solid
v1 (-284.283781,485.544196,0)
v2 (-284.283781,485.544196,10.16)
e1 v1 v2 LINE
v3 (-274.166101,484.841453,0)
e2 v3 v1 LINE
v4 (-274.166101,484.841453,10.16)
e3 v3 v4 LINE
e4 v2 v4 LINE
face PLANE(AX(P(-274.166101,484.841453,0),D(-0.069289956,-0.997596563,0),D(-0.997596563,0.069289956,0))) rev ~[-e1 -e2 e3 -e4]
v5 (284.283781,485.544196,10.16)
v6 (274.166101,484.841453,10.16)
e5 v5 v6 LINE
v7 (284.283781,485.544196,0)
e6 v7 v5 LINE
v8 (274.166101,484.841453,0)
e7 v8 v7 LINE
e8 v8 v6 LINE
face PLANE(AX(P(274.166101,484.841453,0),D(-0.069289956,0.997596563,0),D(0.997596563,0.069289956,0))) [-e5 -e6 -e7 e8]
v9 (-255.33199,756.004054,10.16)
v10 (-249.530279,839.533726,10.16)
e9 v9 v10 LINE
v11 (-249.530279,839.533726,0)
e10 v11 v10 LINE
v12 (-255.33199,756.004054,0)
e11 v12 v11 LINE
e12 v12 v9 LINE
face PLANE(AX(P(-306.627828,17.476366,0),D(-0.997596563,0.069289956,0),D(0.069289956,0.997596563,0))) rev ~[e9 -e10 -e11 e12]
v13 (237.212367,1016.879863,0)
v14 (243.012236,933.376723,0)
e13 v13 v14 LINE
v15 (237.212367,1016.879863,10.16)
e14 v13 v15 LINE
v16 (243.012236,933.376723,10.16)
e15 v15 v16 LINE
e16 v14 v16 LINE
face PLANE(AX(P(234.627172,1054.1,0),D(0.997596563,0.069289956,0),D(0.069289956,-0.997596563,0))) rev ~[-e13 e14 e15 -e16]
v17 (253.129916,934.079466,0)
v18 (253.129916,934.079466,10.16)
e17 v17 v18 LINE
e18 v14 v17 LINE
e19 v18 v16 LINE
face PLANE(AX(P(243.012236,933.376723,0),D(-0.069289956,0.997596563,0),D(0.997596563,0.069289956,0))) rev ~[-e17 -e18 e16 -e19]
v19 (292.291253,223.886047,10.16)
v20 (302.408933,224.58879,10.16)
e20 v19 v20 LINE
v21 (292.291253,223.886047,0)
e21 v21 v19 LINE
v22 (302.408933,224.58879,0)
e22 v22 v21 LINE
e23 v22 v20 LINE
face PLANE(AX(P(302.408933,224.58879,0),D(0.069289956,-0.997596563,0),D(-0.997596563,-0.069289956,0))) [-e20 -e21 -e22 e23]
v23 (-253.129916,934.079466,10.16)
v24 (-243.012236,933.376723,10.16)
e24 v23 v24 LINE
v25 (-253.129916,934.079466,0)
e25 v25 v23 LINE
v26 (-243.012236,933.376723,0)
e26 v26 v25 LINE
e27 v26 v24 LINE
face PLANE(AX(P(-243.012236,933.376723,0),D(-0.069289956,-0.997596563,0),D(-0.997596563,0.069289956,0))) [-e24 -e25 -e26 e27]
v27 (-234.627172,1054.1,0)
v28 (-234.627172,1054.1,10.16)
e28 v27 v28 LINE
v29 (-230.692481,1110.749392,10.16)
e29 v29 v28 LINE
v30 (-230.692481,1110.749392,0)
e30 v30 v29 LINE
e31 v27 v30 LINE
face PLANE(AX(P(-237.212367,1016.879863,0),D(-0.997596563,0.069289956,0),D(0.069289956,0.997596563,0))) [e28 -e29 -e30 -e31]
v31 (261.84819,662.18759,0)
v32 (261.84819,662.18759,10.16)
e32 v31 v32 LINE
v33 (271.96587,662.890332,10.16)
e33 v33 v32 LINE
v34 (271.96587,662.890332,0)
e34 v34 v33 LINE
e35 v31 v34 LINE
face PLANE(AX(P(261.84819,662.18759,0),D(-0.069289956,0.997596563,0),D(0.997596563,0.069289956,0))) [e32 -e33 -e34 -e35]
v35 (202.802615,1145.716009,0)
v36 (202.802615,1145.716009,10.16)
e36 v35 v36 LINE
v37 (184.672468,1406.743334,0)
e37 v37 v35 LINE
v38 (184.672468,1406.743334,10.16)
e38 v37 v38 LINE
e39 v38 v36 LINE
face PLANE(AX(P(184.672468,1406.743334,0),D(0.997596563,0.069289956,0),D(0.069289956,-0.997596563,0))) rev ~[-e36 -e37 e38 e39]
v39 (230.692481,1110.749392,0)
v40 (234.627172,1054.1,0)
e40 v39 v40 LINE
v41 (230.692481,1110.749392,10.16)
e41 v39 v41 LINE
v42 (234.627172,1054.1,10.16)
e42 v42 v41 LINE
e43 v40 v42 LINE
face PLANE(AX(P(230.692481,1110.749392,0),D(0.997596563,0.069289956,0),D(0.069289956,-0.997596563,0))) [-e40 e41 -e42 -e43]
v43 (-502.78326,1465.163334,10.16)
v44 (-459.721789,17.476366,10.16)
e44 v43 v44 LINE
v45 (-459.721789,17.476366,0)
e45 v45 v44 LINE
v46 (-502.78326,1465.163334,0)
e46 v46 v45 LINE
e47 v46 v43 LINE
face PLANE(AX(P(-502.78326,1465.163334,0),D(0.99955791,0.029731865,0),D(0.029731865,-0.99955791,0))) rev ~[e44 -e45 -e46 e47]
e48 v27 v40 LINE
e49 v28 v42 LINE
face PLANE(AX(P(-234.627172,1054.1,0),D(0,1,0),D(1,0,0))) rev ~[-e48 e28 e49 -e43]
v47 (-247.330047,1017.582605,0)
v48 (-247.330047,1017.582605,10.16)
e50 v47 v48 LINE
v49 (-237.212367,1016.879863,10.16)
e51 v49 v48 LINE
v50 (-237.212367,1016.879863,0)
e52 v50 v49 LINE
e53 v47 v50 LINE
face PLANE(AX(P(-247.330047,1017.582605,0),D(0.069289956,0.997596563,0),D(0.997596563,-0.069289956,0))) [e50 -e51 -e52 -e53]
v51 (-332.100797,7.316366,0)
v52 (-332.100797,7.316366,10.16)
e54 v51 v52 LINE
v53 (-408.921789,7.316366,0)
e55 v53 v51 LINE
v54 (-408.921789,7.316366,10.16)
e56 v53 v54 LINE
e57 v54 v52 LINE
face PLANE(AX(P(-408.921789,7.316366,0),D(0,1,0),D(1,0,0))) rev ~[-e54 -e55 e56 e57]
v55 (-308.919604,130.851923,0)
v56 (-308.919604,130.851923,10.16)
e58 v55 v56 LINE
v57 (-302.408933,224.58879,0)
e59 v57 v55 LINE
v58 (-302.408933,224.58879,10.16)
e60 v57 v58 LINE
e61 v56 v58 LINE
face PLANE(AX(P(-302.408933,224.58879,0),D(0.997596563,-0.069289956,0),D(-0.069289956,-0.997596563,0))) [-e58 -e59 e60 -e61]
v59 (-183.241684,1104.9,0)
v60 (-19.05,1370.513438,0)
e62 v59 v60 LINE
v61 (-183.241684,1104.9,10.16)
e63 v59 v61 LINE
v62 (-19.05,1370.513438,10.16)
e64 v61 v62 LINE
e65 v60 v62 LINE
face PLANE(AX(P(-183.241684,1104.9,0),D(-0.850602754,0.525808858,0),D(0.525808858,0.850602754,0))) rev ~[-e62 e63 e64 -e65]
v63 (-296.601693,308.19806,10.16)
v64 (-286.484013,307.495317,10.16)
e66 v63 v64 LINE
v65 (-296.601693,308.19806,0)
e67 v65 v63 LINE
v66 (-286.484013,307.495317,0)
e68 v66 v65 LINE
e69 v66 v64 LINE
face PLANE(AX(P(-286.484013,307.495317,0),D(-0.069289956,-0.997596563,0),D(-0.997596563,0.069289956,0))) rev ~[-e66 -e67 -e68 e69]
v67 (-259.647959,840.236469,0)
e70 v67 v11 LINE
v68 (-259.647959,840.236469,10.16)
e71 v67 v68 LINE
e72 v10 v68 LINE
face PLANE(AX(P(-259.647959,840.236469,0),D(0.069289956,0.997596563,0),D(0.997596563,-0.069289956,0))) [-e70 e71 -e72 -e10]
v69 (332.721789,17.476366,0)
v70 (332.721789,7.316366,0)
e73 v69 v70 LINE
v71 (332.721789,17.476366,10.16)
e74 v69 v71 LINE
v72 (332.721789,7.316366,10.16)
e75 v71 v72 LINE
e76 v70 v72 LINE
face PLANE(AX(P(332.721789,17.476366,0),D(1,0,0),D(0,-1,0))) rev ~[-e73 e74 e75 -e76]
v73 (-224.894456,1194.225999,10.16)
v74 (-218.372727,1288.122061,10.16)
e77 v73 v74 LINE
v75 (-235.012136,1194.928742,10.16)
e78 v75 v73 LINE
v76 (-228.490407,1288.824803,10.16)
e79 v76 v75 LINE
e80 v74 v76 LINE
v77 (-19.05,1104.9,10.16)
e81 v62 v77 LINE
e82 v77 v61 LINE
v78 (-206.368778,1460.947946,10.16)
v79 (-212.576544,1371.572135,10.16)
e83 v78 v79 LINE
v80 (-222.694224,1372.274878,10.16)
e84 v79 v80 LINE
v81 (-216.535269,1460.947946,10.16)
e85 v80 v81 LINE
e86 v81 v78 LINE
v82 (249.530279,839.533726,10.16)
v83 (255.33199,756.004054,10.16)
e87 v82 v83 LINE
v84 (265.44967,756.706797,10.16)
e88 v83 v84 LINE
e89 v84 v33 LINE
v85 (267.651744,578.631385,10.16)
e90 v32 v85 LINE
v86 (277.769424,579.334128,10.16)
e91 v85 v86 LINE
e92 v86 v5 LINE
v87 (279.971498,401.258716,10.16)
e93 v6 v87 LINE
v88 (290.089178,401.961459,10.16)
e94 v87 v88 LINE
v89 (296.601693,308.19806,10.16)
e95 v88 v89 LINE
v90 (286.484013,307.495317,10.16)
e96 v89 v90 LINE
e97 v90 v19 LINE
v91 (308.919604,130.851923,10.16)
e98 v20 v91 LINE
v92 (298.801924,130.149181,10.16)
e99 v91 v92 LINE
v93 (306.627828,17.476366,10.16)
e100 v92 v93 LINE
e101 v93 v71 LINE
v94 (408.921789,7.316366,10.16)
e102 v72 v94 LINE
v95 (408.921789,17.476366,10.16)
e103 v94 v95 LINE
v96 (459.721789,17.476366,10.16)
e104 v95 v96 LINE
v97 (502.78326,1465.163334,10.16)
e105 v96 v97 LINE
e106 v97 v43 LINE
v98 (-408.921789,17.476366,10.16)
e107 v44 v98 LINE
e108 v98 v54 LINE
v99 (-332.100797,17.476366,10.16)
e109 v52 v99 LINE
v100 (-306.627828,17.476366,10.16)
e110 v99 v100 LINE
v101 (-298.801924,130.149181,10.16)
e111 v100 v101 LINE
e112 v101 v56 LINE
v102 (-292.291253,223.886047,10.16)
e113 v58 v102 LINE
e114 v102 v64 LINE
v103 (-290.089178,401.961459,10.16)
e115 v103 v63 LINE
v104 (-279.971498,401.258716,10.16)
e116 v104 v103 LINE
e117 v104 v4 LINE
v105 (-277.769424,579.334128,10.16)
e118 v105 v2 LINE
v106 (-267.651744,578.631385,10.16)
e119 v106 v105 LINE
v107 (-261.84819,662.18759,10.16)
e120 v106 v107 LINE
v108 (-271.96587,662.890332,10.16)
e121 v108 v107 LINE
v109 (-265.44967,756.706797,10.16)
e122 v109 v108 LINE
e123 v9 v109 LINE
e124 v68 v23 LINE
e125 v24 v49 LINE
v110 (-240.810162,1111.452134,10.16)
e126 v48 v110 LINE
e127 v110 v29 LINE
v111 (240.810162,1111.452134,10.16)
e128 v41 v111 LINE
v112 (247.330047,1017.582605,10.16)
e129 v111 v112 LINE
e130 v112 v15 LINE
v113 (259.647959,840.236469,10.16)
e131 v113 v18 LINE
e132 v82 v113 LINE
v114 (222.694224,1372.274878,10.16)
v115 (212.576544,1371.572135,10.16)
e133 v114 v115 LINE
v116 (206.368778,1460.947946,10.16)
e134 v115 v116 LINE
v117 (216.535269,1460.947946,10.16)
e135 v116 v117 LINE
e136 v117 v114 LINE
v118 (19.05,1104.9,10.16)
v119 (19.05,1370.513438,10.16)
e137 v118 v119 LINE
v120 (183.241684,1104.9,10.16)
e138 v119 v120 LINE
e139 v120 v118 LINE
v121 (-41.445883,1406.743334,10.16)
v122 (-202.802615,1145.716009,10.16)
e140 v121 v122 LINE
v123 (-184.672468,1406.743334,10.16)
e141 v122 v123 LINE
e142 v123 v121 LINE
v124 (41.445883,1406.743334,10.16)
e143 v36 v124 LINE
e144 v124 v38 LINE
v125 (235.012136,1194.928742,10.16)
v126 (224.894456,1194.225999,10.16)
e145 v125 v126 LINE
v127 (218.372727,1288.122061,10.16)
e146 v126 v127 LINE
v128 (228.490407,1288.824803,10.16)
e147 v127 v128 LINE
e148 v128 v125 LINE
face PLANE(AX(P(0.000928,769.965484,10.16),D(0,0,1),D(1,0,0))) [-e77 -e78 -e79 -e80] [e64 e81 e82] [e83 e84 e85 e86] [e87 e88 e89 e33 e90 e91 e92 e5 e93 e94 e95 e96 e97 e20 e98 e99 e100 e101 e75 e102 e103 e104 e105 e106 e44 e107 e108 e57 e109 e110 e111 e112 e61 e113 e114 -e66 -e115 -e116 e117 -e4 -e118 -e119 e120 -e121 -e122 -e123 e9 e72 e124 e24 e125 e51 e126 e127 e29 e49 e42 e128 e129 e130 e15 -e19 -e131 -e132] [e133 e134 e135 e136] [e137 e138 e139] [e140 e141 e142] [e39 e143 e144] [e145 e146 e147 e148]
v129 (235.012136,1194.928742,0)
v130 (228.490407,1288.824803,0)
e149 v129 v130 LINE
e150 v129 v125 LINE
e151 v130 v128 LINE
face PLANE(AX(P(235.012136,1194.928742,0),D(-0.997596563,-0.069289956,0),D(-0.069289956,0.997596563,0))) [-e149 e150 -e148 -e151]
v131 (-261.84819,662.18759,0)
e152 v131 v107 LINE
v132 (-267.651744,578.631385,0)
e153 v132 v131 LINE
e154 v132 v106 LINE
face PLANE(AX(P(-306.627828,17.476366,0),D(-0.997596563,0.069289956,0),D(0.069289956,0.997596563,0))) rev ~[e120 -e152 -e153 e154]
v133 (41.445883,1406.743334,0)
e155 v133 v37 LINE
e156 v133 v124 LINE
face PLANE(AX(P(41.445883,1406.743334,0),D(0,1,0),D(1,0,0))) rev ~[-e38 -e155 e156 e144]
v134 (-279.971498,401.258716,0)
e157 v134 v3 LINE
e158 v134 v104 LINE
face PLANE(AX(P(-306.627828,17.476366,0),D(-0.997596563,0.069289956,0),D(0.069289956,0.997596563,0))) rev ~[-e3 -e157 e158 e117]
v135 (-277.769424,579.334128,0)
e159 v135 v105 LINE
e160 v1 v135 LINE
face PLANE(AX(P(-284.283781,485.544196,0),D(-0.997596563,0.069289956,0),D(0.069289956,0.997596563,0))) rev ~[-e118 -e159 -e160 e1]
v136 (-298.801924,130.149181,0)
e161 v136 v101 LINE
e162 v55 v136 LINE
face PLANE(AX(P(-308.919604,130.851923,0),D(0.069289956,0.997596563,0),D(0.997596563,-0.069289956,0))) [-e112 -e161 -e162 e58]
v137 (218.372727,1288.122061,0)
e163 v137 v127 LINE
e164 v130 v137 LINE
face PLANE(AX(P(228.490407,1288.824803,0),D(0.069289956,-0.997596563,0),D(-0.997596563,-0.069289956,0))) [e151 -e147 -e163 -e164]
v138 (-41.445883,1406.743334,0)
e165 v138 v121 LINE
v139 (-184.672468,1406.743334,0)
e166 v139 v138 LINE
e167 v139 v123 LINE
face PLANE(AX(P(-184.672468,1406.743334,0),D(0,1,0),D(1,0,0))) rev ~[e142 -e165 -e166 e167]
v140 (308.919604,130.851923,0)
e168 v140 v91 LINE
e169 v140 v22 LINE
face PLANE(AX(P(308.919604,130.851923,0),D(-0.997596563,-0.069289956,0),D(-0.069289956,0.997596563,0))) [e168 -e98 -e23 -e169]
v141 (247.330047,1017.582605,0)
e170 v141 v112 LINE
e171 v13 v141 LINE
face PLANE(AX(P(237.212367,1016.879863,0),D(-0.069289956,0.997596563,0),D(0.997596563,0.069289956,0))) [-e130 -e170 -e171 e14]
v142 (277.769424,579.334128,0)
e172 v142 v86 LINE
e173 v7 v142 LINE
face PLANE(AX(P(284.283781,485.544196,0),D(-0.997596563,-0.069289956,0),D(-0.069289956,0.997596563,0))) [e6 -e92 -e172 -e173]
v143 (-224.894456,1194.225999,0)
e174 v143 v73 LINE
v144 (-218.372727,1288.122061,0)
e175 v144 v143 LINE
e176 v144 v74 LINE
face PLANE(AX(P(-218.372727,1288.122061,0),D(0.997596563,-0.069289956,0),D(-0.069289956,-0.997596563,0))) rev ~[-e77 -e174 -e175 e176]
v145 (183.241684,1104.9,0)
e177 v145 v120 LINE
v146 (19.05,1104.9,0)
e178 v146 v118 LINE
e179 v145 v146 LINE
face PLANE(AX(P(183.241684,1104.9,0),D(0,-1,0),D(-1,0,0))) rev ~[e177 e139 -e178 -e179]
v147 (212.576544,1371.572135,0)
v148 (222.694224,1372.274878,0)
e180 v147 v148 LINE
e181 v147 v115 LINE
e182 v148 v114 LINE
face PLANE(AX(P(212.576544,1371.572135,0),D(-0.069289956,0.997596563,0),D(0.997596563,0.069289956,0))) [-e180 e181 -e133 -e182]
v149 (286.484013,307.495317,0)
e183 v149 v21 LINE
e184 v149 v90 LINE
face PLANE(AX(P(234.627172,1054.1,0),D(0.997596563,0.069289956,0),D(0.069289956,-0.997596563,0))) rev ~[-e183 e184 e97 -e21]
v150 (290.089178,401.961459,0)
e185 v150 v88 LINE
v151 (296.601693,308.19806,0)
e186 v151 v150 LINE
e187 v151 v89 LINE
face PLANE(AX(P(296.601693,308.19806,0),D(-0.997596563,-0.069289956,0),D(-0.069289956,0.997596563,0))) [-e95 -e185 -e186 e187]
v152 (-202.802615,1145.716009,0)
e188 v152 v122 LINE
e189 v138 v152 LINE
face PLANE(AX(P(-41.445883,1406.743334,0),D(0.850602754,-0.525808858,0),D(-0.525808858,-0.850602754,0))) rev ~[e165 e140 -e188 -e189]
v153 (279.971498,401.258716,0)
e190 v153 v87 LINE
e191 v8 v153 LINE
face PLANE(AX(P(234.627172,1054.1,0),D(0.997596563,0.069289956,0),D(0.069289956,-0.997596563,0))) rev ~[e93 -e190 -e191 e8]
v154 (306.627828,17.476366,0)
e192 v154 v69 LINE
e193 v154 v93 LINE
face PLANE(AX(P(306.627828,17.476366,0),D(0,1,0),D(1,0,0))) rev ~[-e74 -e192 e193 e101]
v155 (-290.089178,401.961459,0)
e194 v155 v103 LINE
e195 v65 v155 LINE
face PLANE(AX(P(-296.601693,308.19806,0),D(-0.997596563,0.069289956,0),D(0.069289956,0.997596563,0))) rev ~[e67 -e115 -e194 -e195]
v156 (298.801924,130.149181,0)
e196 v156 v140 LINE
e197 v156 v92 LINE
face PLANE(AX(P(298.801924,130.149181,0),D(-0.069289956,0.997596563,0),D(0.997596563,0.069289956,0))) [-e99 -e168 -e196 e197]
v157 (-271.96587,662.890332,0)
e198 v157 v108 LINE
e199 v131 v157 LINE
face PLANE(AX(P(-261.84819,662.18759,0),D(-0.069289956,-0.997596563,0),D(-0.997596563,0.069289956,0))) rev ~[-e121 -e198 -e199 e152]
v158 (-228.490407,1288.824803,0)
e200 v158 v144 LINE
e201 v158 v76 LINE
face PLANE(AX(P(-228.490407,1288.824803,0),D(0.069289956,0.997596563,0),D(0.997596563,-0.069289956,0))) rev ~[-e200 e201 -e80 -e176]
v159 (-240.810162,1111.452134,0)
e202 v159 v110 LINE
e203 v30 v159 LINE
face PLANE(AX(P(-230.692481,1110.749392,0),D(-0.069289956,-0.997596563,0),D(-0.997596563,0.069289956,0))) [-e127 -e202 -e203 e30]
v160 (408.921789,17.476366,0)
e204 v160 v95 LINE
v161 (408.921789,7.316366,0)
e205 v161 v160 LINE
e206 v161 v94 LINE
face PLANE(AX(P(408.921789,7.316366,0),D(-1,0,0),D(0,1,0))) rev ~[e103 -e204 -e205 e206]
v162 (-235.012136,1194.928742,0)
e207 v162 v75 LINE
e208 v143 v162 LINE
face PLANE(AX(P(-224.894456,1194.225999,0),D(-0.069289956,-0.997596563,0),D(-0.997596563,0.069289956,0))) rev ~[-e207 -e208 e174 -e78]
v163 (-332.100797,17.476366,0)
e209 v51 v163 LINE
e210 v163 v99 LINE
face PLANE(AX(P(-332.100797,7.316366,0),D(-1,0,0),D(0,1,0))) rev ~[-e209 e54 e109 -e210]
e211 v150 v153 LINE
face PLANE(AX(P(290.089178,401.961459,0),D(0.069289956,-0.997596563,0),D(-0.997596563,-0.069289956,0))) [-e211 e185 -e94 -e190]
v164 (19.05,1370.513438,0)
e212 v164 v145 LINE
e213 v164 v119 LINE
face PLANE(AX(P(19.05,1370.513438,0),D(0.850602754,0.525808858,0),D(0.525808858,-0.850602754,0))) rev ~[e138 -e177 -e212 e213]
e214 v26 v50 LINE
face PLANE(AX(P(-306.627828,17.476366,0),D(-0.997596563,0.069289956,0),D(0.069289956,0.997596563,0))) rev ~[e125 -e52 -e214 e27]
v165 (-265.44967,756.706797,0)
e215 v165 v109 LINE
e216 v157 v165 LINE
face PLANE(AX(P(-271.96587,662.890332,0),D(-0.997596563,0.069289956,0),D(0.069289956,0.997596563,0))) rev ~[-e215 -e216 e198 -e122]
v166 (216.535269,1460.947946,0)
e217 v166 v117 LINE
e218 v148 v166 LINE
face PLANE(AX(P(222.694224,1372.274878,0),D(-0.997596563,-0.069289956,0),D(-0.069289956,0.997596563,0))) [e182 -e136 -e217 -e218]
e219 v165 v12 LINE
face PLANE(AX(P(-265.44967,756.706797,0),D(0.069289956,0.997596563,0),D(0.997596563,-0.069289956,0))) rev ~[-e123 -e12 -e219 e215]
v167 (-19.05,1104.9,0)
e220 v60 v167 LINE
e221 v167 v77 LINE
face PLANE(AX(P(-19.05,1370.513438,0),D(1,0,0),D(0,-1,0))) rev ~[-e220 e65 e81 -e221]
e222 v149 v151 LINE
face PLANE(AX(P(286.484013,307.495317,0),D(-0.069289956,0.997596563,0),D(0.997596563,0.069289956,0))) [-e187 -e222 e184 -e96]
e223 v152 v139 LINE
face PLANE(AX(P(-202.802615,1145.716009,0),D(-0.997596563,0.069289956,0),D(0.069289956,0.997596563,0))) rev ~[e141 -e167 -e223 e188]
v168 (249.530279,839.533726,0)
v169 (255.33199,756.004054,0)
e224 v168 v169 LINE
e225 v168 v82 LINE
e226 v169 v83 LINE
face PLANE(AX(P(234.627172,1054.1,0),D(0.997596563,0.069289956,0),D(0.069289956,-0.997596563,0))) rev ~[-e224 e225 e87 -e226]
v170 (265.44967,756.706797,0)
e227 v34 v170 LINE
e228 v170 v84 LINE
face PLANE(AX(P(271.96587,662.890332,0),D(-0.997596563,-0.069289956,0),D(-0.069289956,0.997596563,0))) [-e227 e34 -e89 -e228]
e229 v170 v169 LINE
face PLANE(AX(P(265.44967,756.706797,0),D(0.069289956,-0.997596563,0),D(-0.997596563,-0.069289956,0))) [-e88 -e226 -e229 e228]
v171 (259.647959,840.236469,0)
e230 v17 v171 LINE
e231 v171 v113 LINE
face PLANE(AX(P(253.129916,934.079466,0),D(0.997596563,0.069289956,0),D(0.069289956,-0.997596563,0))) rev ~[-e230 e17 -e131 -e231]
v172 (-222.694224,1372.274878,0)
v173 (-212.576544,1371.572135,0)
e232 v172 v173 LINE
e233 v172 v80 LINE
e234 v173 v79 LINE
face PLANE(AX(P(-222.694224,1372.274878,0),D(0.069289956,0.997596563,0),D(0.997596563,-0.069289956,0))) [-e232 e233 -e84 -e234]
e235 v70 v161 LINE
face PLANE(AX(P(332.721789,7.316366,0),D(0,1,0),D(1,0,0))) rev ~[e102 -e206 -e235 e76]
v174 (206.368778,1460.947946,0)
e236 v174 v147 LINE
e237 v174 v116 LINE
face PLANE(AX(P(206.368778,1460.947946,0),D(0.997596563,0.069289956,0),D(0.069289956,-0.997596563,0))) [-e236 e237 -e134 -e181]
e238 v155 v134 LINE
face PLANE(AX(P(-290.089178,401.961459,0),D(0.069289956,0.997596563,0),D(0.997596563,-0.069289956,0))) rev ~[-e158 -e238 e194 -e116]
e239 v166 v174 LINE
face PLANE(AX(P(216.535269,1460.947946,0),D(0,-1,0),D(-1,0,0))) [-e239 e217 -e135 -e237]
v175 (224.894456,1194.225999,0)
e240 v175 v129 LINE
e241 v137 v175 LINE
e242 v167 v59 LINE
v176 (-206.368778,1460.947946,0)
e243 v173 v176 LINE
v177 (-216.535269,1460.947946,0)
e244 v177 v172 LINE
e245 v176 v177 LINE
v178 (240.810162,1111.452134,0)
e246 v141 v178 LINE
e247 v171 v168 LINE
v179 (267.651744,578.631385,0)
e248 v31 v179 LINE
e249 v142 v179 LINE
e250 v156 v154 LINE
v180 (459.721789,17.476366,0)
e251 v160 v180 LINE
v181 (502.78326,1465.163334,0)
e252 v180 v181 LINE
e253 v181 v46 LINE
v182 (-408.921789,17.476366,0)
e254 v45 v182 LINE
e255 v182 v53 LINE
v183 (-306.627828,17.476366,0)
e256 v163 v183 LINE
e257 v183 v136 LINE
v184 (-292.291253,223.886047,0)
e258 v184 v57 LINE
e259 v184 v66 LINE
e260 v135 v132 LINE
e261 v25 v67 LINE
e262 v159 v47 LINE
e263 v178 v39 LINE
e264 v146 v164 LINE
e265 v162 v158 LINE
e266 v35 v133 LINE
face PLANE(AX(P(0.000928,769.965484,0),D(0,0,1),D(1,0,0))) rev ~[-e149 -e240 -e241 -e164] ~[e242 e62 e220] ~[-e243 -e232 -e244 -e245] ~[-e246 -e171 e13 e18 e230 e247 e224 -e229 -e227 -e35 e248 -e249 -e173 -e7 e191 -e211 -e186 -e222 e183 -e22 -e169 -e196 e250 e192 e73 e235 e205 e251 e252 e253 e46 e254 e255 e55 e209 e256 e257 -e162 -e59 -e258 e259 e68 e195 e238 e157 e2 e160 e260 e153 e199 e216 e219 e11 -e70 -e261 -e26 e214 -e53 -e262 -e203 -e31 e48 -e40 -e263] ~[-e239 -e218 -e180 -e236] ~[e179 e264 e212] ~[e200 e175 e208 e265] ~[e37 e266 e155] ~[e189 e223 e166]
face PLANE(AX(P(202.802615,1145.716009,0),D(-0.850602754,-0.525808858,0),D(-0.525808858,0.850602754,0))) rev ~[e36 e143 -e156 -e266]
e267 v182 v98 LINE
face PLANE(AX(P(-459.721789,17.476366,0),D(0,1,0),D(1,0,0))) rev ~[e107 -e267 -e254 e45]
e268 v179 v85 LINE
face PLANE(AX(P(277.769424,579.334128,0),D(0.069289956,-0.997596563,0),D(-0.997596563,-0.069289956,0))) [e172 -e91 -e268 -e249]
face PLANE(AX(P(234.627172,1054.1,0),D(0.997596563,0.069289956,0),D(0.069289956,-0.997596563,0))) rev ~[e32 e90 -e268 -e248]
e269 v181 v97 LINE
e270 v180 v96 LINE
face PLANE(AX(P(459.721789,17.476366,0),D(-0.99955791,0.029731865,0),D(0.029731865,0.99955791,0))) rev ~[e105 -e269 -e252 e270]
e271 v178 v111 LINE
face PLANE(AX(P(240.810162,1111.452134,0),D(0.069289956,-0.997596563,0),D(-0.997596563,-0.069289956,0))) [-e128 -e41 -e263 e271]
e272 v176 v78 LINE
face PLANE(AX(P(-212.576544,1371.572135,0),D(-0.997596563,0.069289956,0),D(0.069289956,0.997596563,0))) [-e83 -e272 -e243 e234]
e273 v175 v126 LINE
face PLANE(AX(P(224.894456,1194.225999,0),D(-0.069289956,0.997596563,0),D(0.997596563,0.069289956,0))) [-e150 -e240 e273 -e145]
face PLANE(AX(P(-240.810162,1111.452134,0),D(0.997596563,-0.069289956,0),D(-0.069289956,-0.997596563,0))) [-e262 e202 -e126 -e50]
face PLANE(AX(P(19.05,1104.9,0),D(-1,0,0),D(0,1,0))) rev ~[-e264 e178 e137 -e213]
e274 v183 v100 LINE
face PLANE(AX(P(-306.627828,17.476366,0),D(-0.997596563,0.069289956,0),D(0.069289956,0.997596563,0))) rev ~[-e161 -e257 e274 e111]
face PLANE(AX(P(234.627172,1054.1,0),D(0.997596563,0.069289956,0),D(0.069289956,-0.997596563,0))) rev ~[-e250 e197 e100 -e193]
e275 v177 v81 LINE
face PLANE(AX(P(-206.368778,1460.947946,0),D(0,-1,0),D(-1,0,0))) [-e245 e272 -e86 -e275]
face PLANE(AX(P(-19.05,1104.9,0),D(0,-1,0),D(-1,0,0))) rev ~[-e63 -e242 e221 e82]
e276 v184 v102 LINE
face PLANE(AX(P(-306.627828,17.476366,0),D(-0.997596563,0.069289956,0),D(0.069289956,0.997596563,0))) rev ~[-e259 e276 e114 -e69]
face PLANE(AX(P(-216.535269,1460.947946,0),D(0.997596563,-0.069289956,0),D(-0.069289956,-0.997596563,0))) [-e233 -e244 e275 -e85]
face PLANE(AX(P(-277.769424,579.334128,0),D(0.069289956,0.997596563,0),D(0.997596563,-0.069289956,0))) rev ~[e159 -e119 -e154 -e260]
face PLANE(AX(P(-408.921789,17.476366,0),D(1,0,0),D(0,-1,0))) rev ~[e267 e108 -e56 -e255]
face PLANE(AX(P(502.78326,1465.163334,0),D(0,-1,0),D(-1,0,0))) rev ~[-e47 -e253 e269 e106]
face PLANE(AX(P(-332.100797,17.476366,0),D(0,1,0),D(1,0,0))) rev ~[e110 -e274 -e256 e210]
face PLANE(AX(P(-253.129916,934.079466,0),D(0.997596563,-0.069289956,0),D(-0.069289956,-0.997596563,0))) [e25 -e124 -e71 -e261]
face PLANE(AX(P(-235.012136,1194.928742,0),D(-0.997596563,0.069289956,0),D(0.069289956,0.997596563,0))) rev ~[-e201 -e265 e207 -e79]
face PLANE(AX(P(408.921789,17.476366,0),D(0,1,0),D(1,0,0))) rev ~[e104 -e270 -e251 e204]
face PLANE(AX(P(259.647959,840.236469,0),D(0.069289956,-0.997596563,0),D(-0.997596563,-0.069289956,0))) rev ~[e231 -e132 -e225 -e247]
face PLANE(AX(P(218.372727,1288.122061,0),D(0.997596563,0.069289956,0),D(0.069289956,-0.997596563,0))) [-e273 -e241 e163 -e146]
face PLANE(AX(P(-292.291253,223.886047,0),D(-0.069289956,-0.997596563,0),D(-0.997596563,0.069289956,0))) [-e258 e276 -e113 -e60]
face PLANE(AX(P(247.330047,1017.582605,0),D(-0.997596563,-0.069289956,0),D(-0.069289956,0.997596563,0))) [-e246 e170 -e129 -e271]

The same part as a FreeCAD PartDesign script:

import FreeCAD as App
import Part
import Sketcher
Q = App.Units.Quantity

doc = App.newDocument("Part")
body = doc.addObject("PartDesign::Body", "Body")

sketch1 = body.newObject("Sketcher::SketchObject", "Sketch")
sketch1.AttachmentSupport = (doc.getObject("XY_Plane"), [""])
sketch1.MapMode = "FlatFace"
sketch1.addGeometry(Part.LineSegment(App.Vector(-503, 1465, 0), App.Vector(-460, 17, 0)), False)
sketch1.addGeometry(Part.LineSegment(App.Vector(-460, 17, 0), App.Vector(-409, 17, 0)), False)
sketch1.addGeometry(Part.LineSegment(App.Vector(-409, 17, 0), App.Vector(-409, 7, 0)), False)
sketch1.addGeometry(Part.LineSegment(App.Vector(-409, 7, 0), App.Vector(-332, 7, 0)), False)
sketch1.addGeometry(Part.LineSegment(App.Vector(-332, 7, 0), App.Vector(-332, 17, 0)), False)
sketch1.addGeometry(Part.LineSegment(App.Vector(-332, 17, 0), App.Vector(-307, 17, 0)), False)
sketch1.addGeometry(Part.LineSegment(App.Vector(-307, 17, 0), App.Vector(-235, 1054, 0)), False)
sketch1.addGeometry(Part.LineSegment(App.Vector(-235, 1054, 0), App.Vector(235, 1054, 0)), False)
sketch1.addGeometry(Part.LineSegment(App.Vector(235, 1054, 0), App.Vector(307, 17, 0)), False)
sketch1.addGeometry(Part.LineSegment(App.Vector(307, 17, 0), App.Vector(333, 17, 0)), False)
sketch1.addGeometry(Part.LineSegment(App.Vector(333, 17, 0), App.Vector(333, 7, 0)), False)
sketch1.addGeometry(Part.LineSegment(App.Vector(333, 7, 0), App.Vector(409, 7, 0)), False)
sketch1.addGeometry(Part.LineSegment(App.Vector(409, 7, 0), App.Vector(409, 17, 0)), False)
sketch1.addGeometry(Part.LineSegment(App.Vector(409, 17, 0), App.Vector(460, 17, 0)), False)
sketch1.addGeometry(Part.LineSegment(App.Vector(460, 17, 0), App.Vector(503, 1465, 0)), False)
sketch1.addGeometry(Part.LineSegment(App.Vector(503, 1465, 0), App.Vector(-503, 1465, 0)), False)
sketch1.addGeometry(Part.LineSegment(App.Vector(-183, 1105, 0), App.Vector(-19, 1371, 0)), False)
sketch1.addGeometry(Part.LineSegment(App.Vector(-19, 1371, 0), App.Vector(-19, 1105, 0)), False)
sketch1.addGeometry(Part.LineSegment(App.Vector(-19, 1105, 0), App.Vector(-183, 1105, 0)), False)
sketch1.addGeometry(Part.LineSegment(App.Vector(19, 1371, 0), App.Vector(183, 1105, 0)), False)
sketch1.addGeometry(Part.LineSegment(App.Vector(183, 1105, 0), App.Vector(19, 1105, 0)), False)
sketch1.addGeometry(Part.LineSegment(App.Vector(19, 1105, 0), App.Vector(19, 1371, 0)), False)
sketch1.addGeometry(Part.LineSegment(App.Vector(-203, 1146, 0), App.Vector(-185, 1407, 0)), False)
sketch1.addGeometry(Part.LineSegment(App.Vector(-185, 1407, 0), App.Vector(-41, 1407, 0)), False)
sketch1.addGeometry(Part.LineSegment(App.Vector(-41, 1407, 0), App.Vector(-203, 1146, 0)), False)
sketch1.addGeometry(Part.LineSegment(App.Vector(41, 1407, 0), App.Vector(185, 1407, 0)), False)
sketch1.addGeometry(Part.LineSegment(App.Vector(185, 1407, 0), App.Vector(203, 1146, 0)), False)
sketch1.addGeometry(Part.LineSegment(App.Vector(203, 1146, 0), App.Vector(41, 1407, 0)), False)
sketch1.addConstraint(Sketcher.Constraint("Coincident", 0, 2, 1, 1))
sketch1.addConstraint(Sketcher.Constraint("Coincident", 1, 2, 2, 1))
sketch1.addConstraint(Sketcher.Constraint("Coincident", 2, 2, 3, 1))
sketch1.addConstraint(Sketcher.Constraint("Coincident", 3, 2, 4, 1))
sketch1.addConstraint(Sketcher.Constraint("Coincident", 4, 2, 5, 1))
sketch1.addConstraint(Sketcher.Constraint("Coincident", 5, 2, 6, 1))
sketch1.addConstraint(Sketcher.Constraint("Coincident", 6, 2, 7, 1))
sketch1.addConstraint(Sketcher.Constraint("Coincident", 7, 2, 8, 1))
sketch1.addConstraint(Sketcher.Constraint("Coincident", 8, 2, 9, 1))
sketch1.addConstraint(Sketcher.Constraint("Coincident", 9, 2, 10, 1))
sketch1.addConstraint(Sketcher.Constraint("Coincident", 10, 2, 11, 1))
sketch1.addConstraint(Sketcher.Constraint("Coincident", 11, 2, 12, 1))
sketch1.addConstraint(Sketcher.Constraint("Coincident", 12, 2, 13, 1))
sketch1.addConstraint(Sketcher.Constraint("Coincident", 13, 2, 14, 1))
sketch1.addConstraint(Sketcher.Constraint("Coincident", 14, 2, 15, 1))
sketch1.addConstraint(Sketcher.Constraint("Coincident", 15, 2, 0, 1))
sketch1.addConstraint(Sketcher.Constraint("Coincident", 16, 2, 17, 1))
sketch1.addConstraint(Sketcher.Constraint("Coincident", 17, 2, 18, 1))
sketch1.addConstraint(Sketcher.Constraint("Coincident", 18, 2, 16, 1))
sketch1.addConstraint(Sketcher.Constraint("Coincident", 19, 2, 20, 1))
sketch1.addConstraint(Sketcher.Constraint("Coincident", 20, 2, 21, 1))
sketch1.addConstraint(Sketcher.Constraint("Coincident", 21, 2, 19, 1))
sketch1.addConstraint(Sketcher.Constraint("Coincident", 22, 2, 23, 1))
sketch1.addConstraint(Sketcher.Constraint("Coincident", 23, 2, 24, 1))
sketch1.addConstraint(Sketcher.Constraint("Coincident", 24, 2, 22, 1))
sketch1.addConstraint(Sketcher.Constraint("Coincident", 25, 2, 26, 1))
sketch1.addConstraint(Sketcher.Constraint("Coincident", 26, 2, 27, 1))
sketch1.addConstraint(Sketcher.Constraint("Coincident", 27, 2, 25, 1))
sketch1.addConstraint(Sketcher.Constraint("Horizontal", 1))
sketch1.addConstraint(Sketcher.Constraint("Vertical", 2))
sketch1.addConstraint(Sketcher.Constraint("Horizontal", 3))
sketch1.addConstraint(Sketcher.Constraint("Vertical", 4))
sketch1.addConstraint(Sketcher.Constraint("Horizontal", 5))
sketch1.addConstraint(Sketcher.Constraint("Horizontal", 7))
sketch1.addConstraint(Sketcher.Constraint("Horizontal", 9))
sketch1.addConstraint(Sketcher.Constraint("Vertical", 10))
sketch1.addConstraint(Sketcher.Constraint("Horizontal", 11))
sketch1.addConstraint(Sketcher.Constraint("Vertical", 12))
sketch1.addConstraint(Sketcher.Constraint("Horizontal", 13))
sketch1.addConstraint(Sketcher.Constraint("Horizontal", 15))
sketch1.addConstraint(Sketcher.Constraint("Vertical", 17))
sketch1.addConstraint(Sketcher.Constraint("Horizontal", 18))
sketch1.addConstraint(Sketcher.Constraint("Horizontal", 20))
sketch1.addConstraint(Sketcher.Constraint("Vertical", 21))
sketch1.addConstraint(Sketcher.Constraint("Horizontal", 23))
sketch1.addConstraint(Sketcher.Constraint("Horizontal", 25))
sketch1.addConstraint(Sketcher.Constraint("Symmetric", 5, 2, 8, 2, -2))
sketch1.addConstraint(Sketcher.Constraint("Symmetric", 2, 2, 11, 2, -2))
sketch1.addConstraint(Sketcher.Constraint("Symmetric", 0, 2, 13, 2, -2))
sketch1.addConstraint(Sketcher.Constraint("Symmetric", 18, 2, 19, 2, -2))
sketch1.addConstraint(Sketcher.Constraint("Symmetric", 16, 2, 21, 2, -2))
sketch1.addConstraint(Sketcher.Constraint("Symmetric", 22, 2, 25, 2, -2))
sketch1.addConstraint(Sketcher.Constraint("Symmetric", 24, 2, 26, 2, -2))
sketch1.addConstraint(Sketcher.Constraint("Parallel", 6, 22))
sketch1.addConstraint(Sketcher.Constraint("Parallel", 16, 24))
sketch1.addConstraint(Sketcher.Constraint("Parallel", 8, 26))
sketch1.addConstraint(Sketcher.Constraint("Parallel", 19, 27))
sketch1.addConstraint(Sketcher.Constraint("Horizontal", 1, 2, 4, 2))
sketch1.addConstraint(Sketcher.Constraint("Equal", 0, 14))
sketch1.addConstraint(Sketcher.Constraint("DistanceX", 1, 1, 1, 2, Q("2 in")))
sketch1.addConstraint(Sketcher.Constraint("DistanceX", 11, 1, 11, 2, Q("3 in")))
sketch1.addConstraint(Sketcher.Constraint("DistanceY", 2, 2, 2, 1, Q("0.4 in")))
sketch1.addConstraint(Sketcher.Constraint("DistanceY", 6, 2, 17, 2, Q("2 in")))
sketch1.addConstraint(Sketcher.Constraint("DistanceY", -1, 1, 6, 2, Q("41.5 in")))
sketch1.addConstraint(Sketcher.Constraint("DistanceX", 17, 2, 20, 2, Q("1.5 in")))
sketch1.addConstraint(Sketcher.Constraint("DistanceY", 22, 2, 15, 2, Q("2.3 in")))
sketch1.addConstraint(Sketcher.Constraint("Distance", 22, 261.6562))
sketch1.addConstraint(Sketcher.Constraint("DistanceX", 5, 1, 5, 2, 25.472969))
sketch1.addConstraint(Sketcher.Constraint("DistanceX", 9, 1, 9, 2, 26.093962))
sketch1.addConstraint(Sketcher.Constraint("DistanceX", 15, 2, 15, 1, 1005.56652))
sketch1.addConstraint(Sketcher.Constraint("DistanceY", 17, 2, 17, 1, 265.613438))
sketch1.addConstraint(Sketcher.Constraint("DistanceX", 5, 2, 7, 2, 541.255))
sketch1.addConstraint(Sketcher.Constraint("Distance", 0, 1448.327259))
sketch1.addConstraint(Sketcher.Constraint("Distance", 24, 306.87336))
sketch1.addConstraint(Sketcher.Constraint("DistanceX", 7, 1, 7, 2, 469.254344))
sketch1.addConstraint(Sketcher.Constraint("DistanceY", -1, 1, 24, 2, 1145.716009))
sketch1.addConstraint(Sketcher.Constraint("DistanceX", 24, 2, 18, 2, 19.56093))
pad1 = body.newObject("PartDesign::Pad", "Pad")
pad1.Profile = sketch1
pad1.Length = Q("0.4 in")

sketch2 = body.newObject("Sketcher::SketchObject", "Sketch001")
sketch2.AttachmentSupport = (doc.getObject("XY_Plane"), [""])
sketch2.MapMode = "FlatFace"
sketch2.addGeometry(Part.LineSegment(App.Vector(-223, 1372, 0), App.Vector(-213, 1372, 0)), False)
sketch2.addGeometry(Part.LineSegment(App.Vector(-213, 1372, 0), App.Vector(-206, 1461, 0)), False)
sketch2.addGeometry(Part.LineSegment(App.Vector(-206, 1461, 0), App.Vector(-217, 1461, 0)), False)
sketch2.addGeometry(Part.LineSegment(App.Vector(-217, 1461, 0), App.Vector(-223, 1372, 0)), False)
sketch2.addGeometry(Part.LineSegment(App.Vector(-235, 1195, 0), App.Vector(-225, 1194, 0)), False)
sketch2.addGeometry(Part.LineSegment(App.Vector(-225, 1194, 0), App.Vector(-218, 1288, 0)), False)
sketch2.addGeometry(Part.LineSegment(App.Vector(-218, 1288, 0), App.Vector(-228, 1289, 0)), False)
sketch2.addGeometry(Part.LineSegment(App.Vector(-228, 1289, 0), App.Vector(-235, 1195, 0)), False)
sketch2.addGeometry(Part.LineSegment(App.Vector(225, 1194, 0), App.Vector(235, 1195, 0)), False)
sketch2.addGeometry(Part.LineSegment(App.Vector(235, 1195, 0), App.Vector(228, 1289, 0)), False)
sketch2.addGeometry(Part.LineSegment(App.Vector(228, 1289, 0), App.Vector(218, 1288, 0)), False)
sketch2.addGeometry(Part.LineSegment(App.Vector(218, 1288, 0), App.Vector(225, 1194, 0)), False)
sketch2.addGeometry(Part.LineSegment(App.Vector(213, 1372, 0), App.Vector(223, 1372, 0)), False)
sketch2.addGeometry(Part.LineSegment(App.Vector(223, 1372, 0), App.Vector(217, 1461, 0)), False)
sketch2.addGeometry(Part.LineSegment(App.Vector(217, 1461, 0), App.Vector(206, 1461, 0)), False)
sketch2.addGeometry(Part.LineSegment(App.Vector(206, 1461, 0), App.Vector(213, 1372, 0)), False)
sketch2.addGeometry(Part.LineSegment(App.Vector(-241, 1111, 0), App.Vector(-247, 1018, 0)), False)
sketch2.addGeometry(Part.LineSegment(App.Vector(-247, 1018, 0), App.Vector(-237, 1017, 0)), False)
sketch2.addGeometry(Part.LineSegment(App.Vector(-237, 1017, 0), App.Vector(-231, 1111, 0)), False)
sketch2.addGeometry(Part.LineSegment(App.Vector(-231, 1111, 0), App.Vector(-241, 1111, 0)), False)
sketch2.addGeometry(Part.LineSegment(App.Vector(237, 1017, 0), App.Vector(247, 1018, 0)), False)
sketch2.addGeometry(Part.LineSegment(App.Vector(247, 1018, 0), App.Vector(241, 1111, 0)), False)
sketch2.addGeometry(Part.LineSegment(App.Vector(241, 1111, 0), App.Vector(231, 1111, 0)), False)
sketch2.addGeometry(Part.LineSegment(App.Vector(231, 1111, 0), App.Vector(237, 1017, 0)), False)
sketch2.addGeometry(Part.LineSegment(App.Vector(-299, 130, 0), App.Vector(-292, 224, 0)), False)
sketch2.addGeometry(Part.LineSegment(App.Vector(-292, 224, 0), App.Vector(-302, 225, 0)), False)
sketch2.addGeometry(Part.LineSegment(App.Vector(-302, 225, 0), App.Vector(-309, 131, 0)), False)
sketch2.addGeometry(Part.LineSegment(App.Vector(-309, 131, 0), App.Vector(-299, 130, 0)), False)
sketch2.addGeometry(Part.LineSegment(App.Vector(-243, 933, 0), App.Vector(-253, 934, 0)), False)
sketch2.addGeometry(Part.LineSegment(App.Vector(-253, 934, 0), App.Vector(-260, 840, 0)), False)
sketch2.addGeometry(Part.LineSegment(App.Vector(-260, 840, 0), App.Vector(-250, 840, 0)), False)
sketch2.addGeometry(Part.LineSegment(App.Vector(-250, 840, 0), App.Vector(-243, 933, 0)), False)
sketch2.addGeometry(Part.LineSegment(App.Vector(253, 934, 0), App.Vector(243, 933, 0)), False)
sketch2.addGeometry(Part.LineSegment(App.Vector(243, 933, 0), App.Vector(250, 840, 0)), False)
sketch2.addGeometry(Part.LineSegment(App.Vector(250, 840, 0), App.Vector(260, 840, 0)), False)
sketch2.addGeometry(Part.LineSegment(App.Vector(260, 840, 0), App.Vector(253, 934, 0)), False)
sketch2.addGeometry(Part.LineSegment(App.Vector(-284, 486, 0), App.Vector(-274, 485, 0)), False)
sketch2.addGeometry(Part.LineSegment(App.Vector(-274, 485, 0), App.Vector(-268, 579, 0)), False)
sketch2.addGeometry(Part.LineSegment(App.Vector(-268, 579, 0), App.Vector(-278, 579, 0)), False)
sketch2.addGeometry(Part.LineSegment(App.Vector(-278, 579, 0), App.Vector(-284, 486, 0)), False)
sketch2.addGeometry(Part.LineSegment(App.Vector(-272, 663, 0), App.Vector(-262, 662, 0)), False)
sketch2.addGeometry(Part.LineSegment(App.Vector(-262, 662, 0), App.Vector(-255, 756, 0)), False)
sketch2.addGeometry(Part.LineSegment(App.Vector(-255, 756, 0), App.Vector(-265, 757, 0)), False)
sketch2.addGeometry(Part.LineSegment(App.Vector(-265, 757, 0), App.Vector(-272, 663, 0)), False)
sketch2.addGeometry(Part.LineSegment(App.Vector(262, 662, 0), App.Vector(272, 663, 0)), False)
sketch2.addGeometry(Part.LineSegment(App.Vector(272, 663, 0), App.Vector(265, 757, 0)), False)
sketch2.addGeometry(Part.LineSegment(App.Vector(265, 757, 0), App.Vector(255, 756, 0)), False)
sketch2.addGeometry(Part.LineSegment(App.Vector(255, 756, 0), App.Vector(262, 662, 0)), False)
sketch2.addGeometry(Part.LineSegment(App.Vector(274, 485, 0), App.Vector(284, 486, 0)), False)
sketch2.addGeometry(Part.LineSegment(App.Vector(284, 486, 0), App.Vector(278, 579, 0)), False)
sketch2.addGeometry(Part.LineSegment(App.Vector(278, 579, 0), App.Vector(268, 579, 0)), False)
sketch2.addGeometry(Part.LineSegment(App.Vector(268, 579, 0), App.Vector(274, 485, 0)), False)
sketch2.addGeometry(Part.LineSegment(App.Vector(-297, 308, 0), App.Vector(-286, 307, 0)), False)
sketch2.addGeometry(Part.LineSegment(App.Vector(-286, 307, 0), App.Vector(-280, 401, 0)), False)
sketch2.addGeometry(Part.LineSegment(App.Vector(-280, 401, 0), App.Vector(-290, 402, 0)), False)
sketch2.addGeometry(Part.LineSegment(App.Vector(-290, 402, 0), App.Vector(-297, 308, 0)), False)
sketch2.addGeometry(Part.LineSegment(App.Vector(286, 307, 0), App.Vector(297, 308, 0)), False)
sketch2.addGeometry(Part.LineSegment(App.Vector(297, 308, 0), App.Vector(290, 402, 0)), False)
sketch2.addGeometry(Part.LineSegment(App.Vector(290, 402, 0), App.Vector(280, 401, 0)), False)
sketch2.addGeometry(Part.LineSegment(App.Vector(280, 401, 0), App.Vector(286, 307, 0)), False)
sketch2.addGeometry(Part.LineSegment(App.Vector(299, 130, 0), App.Vector(309, 131, 0)), False)
sketch2.addGeometry(Part.LineSegment(App.Vector(309, 131, 0), App.Vector(302, 225, 0)), False)
sketch2.addGeometry(Part.LineSegment(App.Vector(302, 225, 0), App.Vector(292, 224, 0)), False)
sketch2.addGeometry(Part.LineSegment(App.Vector(292, 224, 0), App.Vector(299, 130, 0)), False)
sketch2.addConstraint(Sketcher.Constraint("Coincident", 0, 2, 1, 1))
sketch2.addConstraint(Sketcher.Constraint("Coincident", 1, 2, 2, 1))
sketch2.addConstraint(Sketcher.Constraint("Coincident", 2, 2, 3, 1))
sketch2.addConstraint(Sketcher.Constraint("Coincident", 3, 2, 0, 1))
sketch2.addConstraint(Sketcher.Constraint("Coincident", 4, 2, 5, 1))
sketch2.addConstraint(Sketcher.Constraint("Coincident", 5, 2, 6, 1))
sketch2.addConstraint(Sketcher.Constraint("Coincident", 6, 2, 7, 1))
sketch2.addConstraint(Sketcher.Constraint("Coincident", 7, 2, 4, 1))
sketch2.addConstraint(Sketcher.Constraint("Coincident", 8, 2, 9, 1))
sketch2.addConstraint(Sketcher.Constraint("Coincident", 9, 2, 10, 1))
sketch2.addConstraint(Sketcher.Constraint("Coincident", 10, 2, 11, 1))
sketch2.addConstraint(Sketcher.Constraint("Coincident", 11, 2, 8, 1))
sketch2.addConstraint(Sketcher.Constraint("Coincident", 12, 2, 13, 1))
sketch2.addConstraint(Sketcher.Constraint("Coincident", 13, 2, 14, 1))
sketch2.addConstraint(Sketcher.Constraint("Coincident", 14, 2, 15, 1))
sketch2.addConstraint(Sketcher.Constraint("Coincident", 15, 2, 12, 1))
sketch2.addConstraint(Sketcher.Constraint("Coincident", 16, 2, 17, 1))
sketch2.addConstraint(Sketcher.Constraint("Coincident", 17, 2, 18, 1))
sketch2.addConstraint(Sketcher.Constraint("Coincident", 18, 2, 19, 1))
sketch2.addConstraint(Sketcher.Constraint("Coincident", 19, 2, 16, 1))
sketch2.addConstraint(Sketcher.Constraint("Coincident", 20, 2, 21, 1))
sketch2.addConstraint(Sketcher.Constraint("Coincident", 21, 2, 22, 1))
sketch2.addConstraint(Sketcher.Constraint("Coincident", 22, 2, 23, 1))
sketch2.addConstraint(Sketcher.Constraint("Coincident", 23, 2, 20, 1))
sketch2.addConstraint(Sketcher.Constraint("Coincident", 24, 2, 25, 1))
sketch2.addConstraint(Sketcher.Constraint("Coincident", 25, 2, 26, 1))
sketch2.addConstraint(Sketcher.Constraint("Coincident", 26, 2, 27, 1))
sketch2.addConstraint(Sketcher.Constraint("Coincident", 27, 2, 24, 1))
sketch2.addConstraint(Sketcher.Constraint("Coincident", 28, 2, 29, 1))
sketch2.addConstraint(Sketcher.Constraint("Coincident", 29, 2, 30, 1))
sketch2.addConstraint(Sketcher.Constraint("Coincident", 30, 2, 31, 1))
sketch2.addConstraint(Sketcher.Constraint("Coincident", 31, 2, 28, 1))
sketch2.addConstraint(Sketcher.Constraint("Coincident", 32, 2, 33, 1))
sketch2.addConstraint(Sketcher.Constraint("Coincident", 33, 2, 34, 1))
sketch2.addConstraint(Sketcher.Constraint("Coincident", 34, 2, 35, 1))
sketch2.addConstraint(Sketcher.Constraint("Coincident", 35, 2, 32, 1))
sketch2.addConstraint(Sketcher.Constraint("Coincident", 36, 2, 37, 1))
sketch2.addConstraint(Sketcher.Constraint("Coincident", 37, 2, 38, 1))
sketch2.addConstraint(Sketcher.Constraint("Coincident", 38, 2, 39, 1))
sketch2.addConstraint(Sketcher.Constraint("Coincident", 39, 2, 36, 1))
sketch2.addConstraint(Sketcher.Constraint("Coincident", 40, 2, 41, 1))
sketch2.addConstraint(Sketcher.Constraint("Coincident", 41, 2, 42, 1))
sketch2.addConstraint(Sketcher.Constraint("Coincident", 42, 2, 43, 1))
sketch2.addConstraint(Sketcher.Constraint("Coincident", 43, 2, 40, 1))
sketch2.addConstraint(Sketcher.Constraint("Coincident", 44, 2, 45, 1))
sketch2.addConstraint(Sketcher.Constraint("Coincident", 45, 2, 46, 1))
sketch2.addConstraint(Sketcher.Constraint("Coincident", 46, 2, 47, 1))
sketch2.addConstraint(Sketcher.Constraint("Coincident", 47, 2, 44, 1))
sketch2.addConstraint(Sketcher.Constraint("Coincident", 48, 2, 49, 1))
sketch2.addConstraint(Sketcher.Constraint("Coincident", 49, 2, 50, 1))
sketch2.addConstraint(Sketcher.Constraint("Coincident", 50, 2, 51, 1))
sketch2.addConstraint(Sketcher.Constraint("Coincident", 51, 2, 48, 1))
sketch2.addConstraint(Sketcher.Constraint("Coincident", 52, 2, 53, 1))
sketch2.addConstraint(Sketcher.Constraint("Coincident", 53, 2, 54, 1))
sketch2.addConstraint(Sketcher.Constraint("Coincident", 54, 2, 55, 1))
sketch2.addConstraint(Sketcher.Constraint("Coincident", 55, 2, 52, 1))
sketch2.addConstraint(Sketcher.Constraint("Coincident", 56, 2, 57, 1))
sketch2.addConstraint(Sketcher.Constraint("Coincident", 57, 2, 58, 1))
sketch2.addConstraint(Sketcher.Constraint("Coincident", 58, 2, 59, 1))
sketch2.addConstraint(Sketcher.Constraint("Coincident", 59, 2, 56, 1))
sketch2.addConstraint(Sketcher.Constraint("Coincident", 60, 2, 61, 1))
sketch2.addConstraint(Sketcher.Constraint("Coincident", 61, 2, 62, 1))
sketch2.addConstraint(Sketcher.Constraint("Coincident", 62, 2, 63, 1))
sketch2.addConstraint(Sketcher.Constraint("Coincident", 63, 2, 60, 1))
sketch2.addConstraint(Sketcher.Constraint("Horizontal", 2))
sketch2.addConstraint(Sketcher.Constraint("Horizontal", 14))
sketch2.addConstraint(Sketcher.Constraint("Symmetric", 7, 2, 8, 2, -2))
sketch2.addConstraint(Sketcher.Constraint("Symmetric", 6, 2, 9, 2, -2))
sketch2.addConstraint(Sketcher.Constraint("Symmetric", 5, 2, 10, 2, -2))
sketch2.addConstraint(Sketcher.Constraint("Symmetric", 4, 2, 11, 2, -2))
sketch2.addConstraint(Sketcher.Constraint("Symmetric", 3, 2, 12, 2, -2))
sketch2.addConstraint(Sketcher.Constraint("Symmetric", 2, 2, 13, 2, -2))
sketch2.addConstraint(Sketcher.Constraint("Symmetric", 0, 2, 15, 2, -2))
sketch2.addConstraint(Sketcher.Constraint("Symmetric", 16, 2, 20, 2, -2))
sketch2.addConstraint(Sketcher.Constraint("Symmetric", 19, 2, 21, 2, -2))
sketch2.addConstraint(Sketcher.Constraint("Symmetric", 18, 2, 22, 2, -2))
sketch2.addConstraint(Sketcher.Constraint("Symmetric", 17, 2, 23, 2, -2))
sketch2.addConstraint(Sketcher.Constraint("Symmetric", 31, 2, 32, 2, -2))
sketch2.addConstraint(Sketcher.Constraint("Symmetric", 30, 2, 33, 2, -2))
sketch2.addConstraint(Sketcher.Constraint("Symmetric", 29, 2, 34, 2, -2))
sketch2.addConstraint(Sketcher.Constraint("Symmetric", 28, 2, 35, 2, -2))
sketch2.addConstraint(Sketcher.Constraint("Symmetric", 43, 2, 44, 2, -2))
sketch2.addConstraint(Sketcher.Constraint("Symmetric", 42, 2, 45, 2, -2))
sketch2.addConstraint(Sketcher.Constraint("Symmetric", 41, 2, 46, 2, -2))
sketch2.addConstraint(Sketcher.Constraint("Symmetric", 40, 2, 47, 2, -2))
sketch2.addConstraint(Sketcher.Constraint("Symmetric", 39, 2, 48, 2, -2))
sketch2.addConstraint(Sketcher.Constraint("Symmetric", 38, 2, 49, 2, -2))
sketch2.addConstraint(Sketcher.Constraint("Symmetric", 37, 2, 50, 2, -2))
sketch2.addConstraint(Sketcher.Constraint("Symmetric", 36, 2, 51, 2, -2))
sketch2.addConstraint(Sketcher.Constraint("Symmetric", 55, 2, 56, 2, -2))
sketch2.addConstraint(Sketcher.Constraint("Symmetric", 54, 2, 57, 2, -2))
sketch2.addConstraint(Sketcher.Constraint("Symmetric", 53, 2, 58, 2, -2))
sketch2.addConstraint(Sketcher.Constraint("Symmetric", 52, 2, 59, 2, -2))
sketch2.addConstraint(Sketcher.Constraint("Symmetric", 26, 2, 60, 2, -2))
sketch2.addConstraint(Sketcher.Constraint("Symmetric", 25, 2, 61, 2, -2))
sketch2.addConstraint(Sketcher.Constraint("Symmetric", 24, 2, 62, 2, -2))
sketch2.addConstraint(Sketcher.Constraint("Symmetric", 27, 2, 63, 2, -2))
sketch2.addConstraint(Sketcher.Constraint("Perpendicular", 0, 1))
sketch2.addConstraint(Sketcher.Constraint("Parallel", 1, 3))
sketch2.addConstraint(Sketcher.Constraint("Perpendicular", 3, 4))
sketch2.addConstraint(Sketcher.Constraint("Perpendicular", 4, 5))
sketch2.addConstraint(Sketcher.Constraint("Perpendicular", 5, 6))
sketch2.addConstraint(Sketcher.Constraint("Perpendicular", 6, 7))
sketch2.addConstraint(Sketcher.Constraint("Parallel", 13, 15))
sketch2.addConstraint(Sketcher.Constraint("Parallel", 7, 16))
sketch2.addConstraint(Sketcher.Constraint("Perpendicular", 16, 17))
sketch2.addConstraint(Sketcher.Constraint("Perpendicular", 17, 18))
sketch2.addConstraint(Sketcher.Constraint("Perpendicular", 18, 19))
sketch2.addConstraint(Sketcher.Constraint("Perpendicular", 19, 24))
sketch2.addConstraint(Sketcher.Constraint("Perpendicular", 24, 25))
sketch2.addConstraint(Sketcher.Constraint("Perpendicular", 25, 26))
sketch2.addConstraint(Sketcher.Constraint("Perpendicular", 26, 27))
sketch2.addConstraint(Sketcher.Constraint("Parallel", 27, 28))
sketch2.addConstraint(Sketcher.Constraint("Perpendicular", 28, 29))
sketch2.addConstraint(Sketcher.Constraint("Perpendicular", 29, 30))
sketch2.addConstraint(Sketcher.Constraint("Perpendicular", 30, 31))
sketch2.addConstraint(Sketcher.Constraint("Perpendicular", 31, 36))
sketch2.addConstraint(Sketcher.Constraint("Perpendicular", 36, 37))
sketch2.addConstraint(Sketcher.Constraint("Perpendicular", 37, 38))
sketch2.addConstraint(Sketcher.Constraint("Perpendicular", 38, 39))
sketch2.addConstraint(Sketcher.Constraint("Perpendicular", 39, 40))
sketch2.addConstraint(Sketcher.Constraint("Perpendicular", 40, 41))
sketch2.addConstraint(Sketcher.Constraint("Perpendicular", 41, 42))
sketch2.addConstraint(Sketcher.Constraint("Perpendicular", 42, 43))
sketch2.addConstraint(Sketcher.Constraint("Perpendicular", 43, 52))
sketch2.addConstraint(Sketcher.Constraint("Perpendicular", 52, 53))
sketch2.addConstraint(Sketcher.Constraint("Perpendicular", 53, 54))
sketch2.addConstraint(Sketcher.Constraint("Perpendicular", 54, 55))
sketch2.addConstraint(Sketcher.Constraint("Equal", 0, 4))
sketch2.addConstraint(Sketcher.Constraint("Equal", 12, 17))
sketch2.addConstraint(Sketcher.Constraint("Equal", 22, 25))
sketch2.addConstraint(Sketcher.Constraint("Equal", 27, 28))
sketch2.addConstraint(Sketcher.Constraint("Equal", 34, 36))
sketch2.addConstraint(Sketcher.Constraint("Equal", 38, 40))
sketch2.addConstraint(Sketcher.Constraint("Equal", 50, 52))
sketch2.addConstraint(Sketcher.Constraint("DistanceX", 53, 2, -1, 1, Q("11.0224999 in")))
sketch2.addConstraint(Sketcher.Constraint("Distance", 3, 88.886702))
sketch2.addConstraint(Sketcher.Constraint("Distance", 24, 93.9627))
sketch2.addConstraint(Sketcher.Constraint("DistanceX", 2, 2, 2, 1, 10.16649))
sketch2.addConstraint(Sketcher.Constraint("DistanceY", -1, 1, 4, 2, 1194.225999))
sketch2.addConstraint(Sketcher.Constraint("DistanceX", 36, 2, -1, 1, 274.166101))
sketch2.addConstraint(Sketcher.Constraint("Distance", 5, 94.122279))
sketch2.addConstraint(Sketcher.Constraint("Distance", 41, 94.042489))
sketch2.addConstraint(Sketcher.Constraint("DistanceX", 1, 2, -1, 1, 206.368778))
sketch2.addConstraint(Sketcher.Constraint("DistanceY", -1, 1, 3, 2, 1372.274878))
sketch2.addConstraint(Sketcher.Constraint("DistanceY", -1, 1, 5, 2, 1288.122061))
sketch2.addConstraint(Sketcher.Constraint("DistanceX", 18, 2, -1, 1, 230.692481))
sketch2.addConstraint(Sketcher.Constraint("DistanceY", -1, 1, 18, 2, 1110.749392))
sketch2.addConstraint(Sketcher.Constraint("DistanceY", -1, 1, 25, 2, 224.58879))
sketch2.addConstraint(Sketcher.Constraint("DistanceX", 29, 2, -1, 1, 259.647959))
sketch2.addConstraint(Sketcher.Constraint("DistanceY", -1, 1, 29, 2, 840.236469))
sketch2.addConstraint(Sketcher.Constraint("DistanceX", 40, 2, -1, 1, 261.84819))
sketch2.addConstraint(Sketcher.Constraint("DistanceY", -1, 1, 40, 2, 662.18759))
sketch2.addConstraint(Sketcher.Constraint("DistanceY", -1, 1, 54, 2, 401.961459))
sketch2.addConstraint(Sketcher.Constraint("DistanceY", -1, 1, 55, 2, 308.19806))
sketch2.addConstraint(Sketcher.Constraint("Distance", 16, 94.095682))
sketch2.addConstraint(Sketcher.Constraint("Distance", 29, 94.069086))
sketch2.addConstraint(Sketcher.Constraint("Distance", 37, 94.015893))
sketch2.addConstraint(Sketcher.Constraint("DistanceX", 4, 2, -1, 1, 224.894456))
sketch2.addConstraint(Sketcher.Constraint("DistanceX", 24, 2, -1, 1, 292.291253))
sketch2.addConstraint(Sketcher.Constraint("DistanceY", -1, 1, 36, 2, 484.841453))
pocket1 = body.newObject("PartDesign::Pocket", "Pocket")
pocket1.Profile = sketch2
pocket1.Length = Q("0.5 in")
pocket1.Reversed = True

doc.recompute()
